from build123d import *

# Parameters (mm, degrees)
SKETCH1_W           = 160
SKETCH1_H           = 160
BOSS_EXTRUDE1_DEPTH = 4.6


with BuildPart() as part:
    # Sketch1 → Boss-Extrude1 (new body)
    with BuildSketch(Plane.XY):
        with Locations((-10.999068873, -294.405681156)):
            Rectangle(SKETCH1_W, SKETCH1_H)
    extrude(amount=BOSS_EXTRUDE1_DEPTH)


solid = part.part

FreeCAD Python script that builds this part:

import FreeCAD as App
import Part
import Sketcher

V = App.Vector

doc = App.newDocument("Part")
body = doc.addObject("PartDesign::Body", "Body")

# Sketch on XY plane
sketch1 = body.newObject("Sketcher::SketchObject", "Sketch")
sketch1.AttachmentSupport = (doc.getObject("XY_Plane"), [""])
sketch1.MapMode = "FlatFace"
sketch1.addGeometry([
    Part.LineSegment(V(-91, -214, 0), V(-91, -374, 0)),
    Part.LineSegment(V(-91, -374, 0), V(69, -374, 0)),
    Part.LineSegment(V(69, -374, 0), V(69, -214, 0)),
    Part.LineSegment(V(69, -214, 0), V(-91, -214, 0)),
], False)
sketch1.addConstraint([
    Sketcher.Constraint("Coincident", 0, 2, 1, 1),
    Sketcher.Constraint("Coincident", 1, 2, 2, 1),
    Sketcher.Constraint("Coincident", 2, 2, 3, 1),
    Sketcher.Constraint("Coincident", 3, 2, 0, 1),
    Sketcher.Constraint("Vertical", 0),
    Sketcher.Constraint("Horizontal", 1),
    Sketcher.Constraint("Vertical", 2),
    Sketcher.Constraint("Horizontal", 3),
    Sketcher.Constraint("Equal", 3, 0),
    Sketcher.Constraint("DistanceX", 1, 1, 1, 2, 160.0),
    Sketcher.Constraint("DistanceX", 0, 2, -1, 1, 90.999069),
    Sketcher.Constraint("DistanceY", 0, 2, -1, 1, 374.405681),
])
pad1 = body.newObject("PartDesign::Pad", "Pad")
pad1.Profile = sketch1
pad1.Length = 4.6

doc.recompute()
